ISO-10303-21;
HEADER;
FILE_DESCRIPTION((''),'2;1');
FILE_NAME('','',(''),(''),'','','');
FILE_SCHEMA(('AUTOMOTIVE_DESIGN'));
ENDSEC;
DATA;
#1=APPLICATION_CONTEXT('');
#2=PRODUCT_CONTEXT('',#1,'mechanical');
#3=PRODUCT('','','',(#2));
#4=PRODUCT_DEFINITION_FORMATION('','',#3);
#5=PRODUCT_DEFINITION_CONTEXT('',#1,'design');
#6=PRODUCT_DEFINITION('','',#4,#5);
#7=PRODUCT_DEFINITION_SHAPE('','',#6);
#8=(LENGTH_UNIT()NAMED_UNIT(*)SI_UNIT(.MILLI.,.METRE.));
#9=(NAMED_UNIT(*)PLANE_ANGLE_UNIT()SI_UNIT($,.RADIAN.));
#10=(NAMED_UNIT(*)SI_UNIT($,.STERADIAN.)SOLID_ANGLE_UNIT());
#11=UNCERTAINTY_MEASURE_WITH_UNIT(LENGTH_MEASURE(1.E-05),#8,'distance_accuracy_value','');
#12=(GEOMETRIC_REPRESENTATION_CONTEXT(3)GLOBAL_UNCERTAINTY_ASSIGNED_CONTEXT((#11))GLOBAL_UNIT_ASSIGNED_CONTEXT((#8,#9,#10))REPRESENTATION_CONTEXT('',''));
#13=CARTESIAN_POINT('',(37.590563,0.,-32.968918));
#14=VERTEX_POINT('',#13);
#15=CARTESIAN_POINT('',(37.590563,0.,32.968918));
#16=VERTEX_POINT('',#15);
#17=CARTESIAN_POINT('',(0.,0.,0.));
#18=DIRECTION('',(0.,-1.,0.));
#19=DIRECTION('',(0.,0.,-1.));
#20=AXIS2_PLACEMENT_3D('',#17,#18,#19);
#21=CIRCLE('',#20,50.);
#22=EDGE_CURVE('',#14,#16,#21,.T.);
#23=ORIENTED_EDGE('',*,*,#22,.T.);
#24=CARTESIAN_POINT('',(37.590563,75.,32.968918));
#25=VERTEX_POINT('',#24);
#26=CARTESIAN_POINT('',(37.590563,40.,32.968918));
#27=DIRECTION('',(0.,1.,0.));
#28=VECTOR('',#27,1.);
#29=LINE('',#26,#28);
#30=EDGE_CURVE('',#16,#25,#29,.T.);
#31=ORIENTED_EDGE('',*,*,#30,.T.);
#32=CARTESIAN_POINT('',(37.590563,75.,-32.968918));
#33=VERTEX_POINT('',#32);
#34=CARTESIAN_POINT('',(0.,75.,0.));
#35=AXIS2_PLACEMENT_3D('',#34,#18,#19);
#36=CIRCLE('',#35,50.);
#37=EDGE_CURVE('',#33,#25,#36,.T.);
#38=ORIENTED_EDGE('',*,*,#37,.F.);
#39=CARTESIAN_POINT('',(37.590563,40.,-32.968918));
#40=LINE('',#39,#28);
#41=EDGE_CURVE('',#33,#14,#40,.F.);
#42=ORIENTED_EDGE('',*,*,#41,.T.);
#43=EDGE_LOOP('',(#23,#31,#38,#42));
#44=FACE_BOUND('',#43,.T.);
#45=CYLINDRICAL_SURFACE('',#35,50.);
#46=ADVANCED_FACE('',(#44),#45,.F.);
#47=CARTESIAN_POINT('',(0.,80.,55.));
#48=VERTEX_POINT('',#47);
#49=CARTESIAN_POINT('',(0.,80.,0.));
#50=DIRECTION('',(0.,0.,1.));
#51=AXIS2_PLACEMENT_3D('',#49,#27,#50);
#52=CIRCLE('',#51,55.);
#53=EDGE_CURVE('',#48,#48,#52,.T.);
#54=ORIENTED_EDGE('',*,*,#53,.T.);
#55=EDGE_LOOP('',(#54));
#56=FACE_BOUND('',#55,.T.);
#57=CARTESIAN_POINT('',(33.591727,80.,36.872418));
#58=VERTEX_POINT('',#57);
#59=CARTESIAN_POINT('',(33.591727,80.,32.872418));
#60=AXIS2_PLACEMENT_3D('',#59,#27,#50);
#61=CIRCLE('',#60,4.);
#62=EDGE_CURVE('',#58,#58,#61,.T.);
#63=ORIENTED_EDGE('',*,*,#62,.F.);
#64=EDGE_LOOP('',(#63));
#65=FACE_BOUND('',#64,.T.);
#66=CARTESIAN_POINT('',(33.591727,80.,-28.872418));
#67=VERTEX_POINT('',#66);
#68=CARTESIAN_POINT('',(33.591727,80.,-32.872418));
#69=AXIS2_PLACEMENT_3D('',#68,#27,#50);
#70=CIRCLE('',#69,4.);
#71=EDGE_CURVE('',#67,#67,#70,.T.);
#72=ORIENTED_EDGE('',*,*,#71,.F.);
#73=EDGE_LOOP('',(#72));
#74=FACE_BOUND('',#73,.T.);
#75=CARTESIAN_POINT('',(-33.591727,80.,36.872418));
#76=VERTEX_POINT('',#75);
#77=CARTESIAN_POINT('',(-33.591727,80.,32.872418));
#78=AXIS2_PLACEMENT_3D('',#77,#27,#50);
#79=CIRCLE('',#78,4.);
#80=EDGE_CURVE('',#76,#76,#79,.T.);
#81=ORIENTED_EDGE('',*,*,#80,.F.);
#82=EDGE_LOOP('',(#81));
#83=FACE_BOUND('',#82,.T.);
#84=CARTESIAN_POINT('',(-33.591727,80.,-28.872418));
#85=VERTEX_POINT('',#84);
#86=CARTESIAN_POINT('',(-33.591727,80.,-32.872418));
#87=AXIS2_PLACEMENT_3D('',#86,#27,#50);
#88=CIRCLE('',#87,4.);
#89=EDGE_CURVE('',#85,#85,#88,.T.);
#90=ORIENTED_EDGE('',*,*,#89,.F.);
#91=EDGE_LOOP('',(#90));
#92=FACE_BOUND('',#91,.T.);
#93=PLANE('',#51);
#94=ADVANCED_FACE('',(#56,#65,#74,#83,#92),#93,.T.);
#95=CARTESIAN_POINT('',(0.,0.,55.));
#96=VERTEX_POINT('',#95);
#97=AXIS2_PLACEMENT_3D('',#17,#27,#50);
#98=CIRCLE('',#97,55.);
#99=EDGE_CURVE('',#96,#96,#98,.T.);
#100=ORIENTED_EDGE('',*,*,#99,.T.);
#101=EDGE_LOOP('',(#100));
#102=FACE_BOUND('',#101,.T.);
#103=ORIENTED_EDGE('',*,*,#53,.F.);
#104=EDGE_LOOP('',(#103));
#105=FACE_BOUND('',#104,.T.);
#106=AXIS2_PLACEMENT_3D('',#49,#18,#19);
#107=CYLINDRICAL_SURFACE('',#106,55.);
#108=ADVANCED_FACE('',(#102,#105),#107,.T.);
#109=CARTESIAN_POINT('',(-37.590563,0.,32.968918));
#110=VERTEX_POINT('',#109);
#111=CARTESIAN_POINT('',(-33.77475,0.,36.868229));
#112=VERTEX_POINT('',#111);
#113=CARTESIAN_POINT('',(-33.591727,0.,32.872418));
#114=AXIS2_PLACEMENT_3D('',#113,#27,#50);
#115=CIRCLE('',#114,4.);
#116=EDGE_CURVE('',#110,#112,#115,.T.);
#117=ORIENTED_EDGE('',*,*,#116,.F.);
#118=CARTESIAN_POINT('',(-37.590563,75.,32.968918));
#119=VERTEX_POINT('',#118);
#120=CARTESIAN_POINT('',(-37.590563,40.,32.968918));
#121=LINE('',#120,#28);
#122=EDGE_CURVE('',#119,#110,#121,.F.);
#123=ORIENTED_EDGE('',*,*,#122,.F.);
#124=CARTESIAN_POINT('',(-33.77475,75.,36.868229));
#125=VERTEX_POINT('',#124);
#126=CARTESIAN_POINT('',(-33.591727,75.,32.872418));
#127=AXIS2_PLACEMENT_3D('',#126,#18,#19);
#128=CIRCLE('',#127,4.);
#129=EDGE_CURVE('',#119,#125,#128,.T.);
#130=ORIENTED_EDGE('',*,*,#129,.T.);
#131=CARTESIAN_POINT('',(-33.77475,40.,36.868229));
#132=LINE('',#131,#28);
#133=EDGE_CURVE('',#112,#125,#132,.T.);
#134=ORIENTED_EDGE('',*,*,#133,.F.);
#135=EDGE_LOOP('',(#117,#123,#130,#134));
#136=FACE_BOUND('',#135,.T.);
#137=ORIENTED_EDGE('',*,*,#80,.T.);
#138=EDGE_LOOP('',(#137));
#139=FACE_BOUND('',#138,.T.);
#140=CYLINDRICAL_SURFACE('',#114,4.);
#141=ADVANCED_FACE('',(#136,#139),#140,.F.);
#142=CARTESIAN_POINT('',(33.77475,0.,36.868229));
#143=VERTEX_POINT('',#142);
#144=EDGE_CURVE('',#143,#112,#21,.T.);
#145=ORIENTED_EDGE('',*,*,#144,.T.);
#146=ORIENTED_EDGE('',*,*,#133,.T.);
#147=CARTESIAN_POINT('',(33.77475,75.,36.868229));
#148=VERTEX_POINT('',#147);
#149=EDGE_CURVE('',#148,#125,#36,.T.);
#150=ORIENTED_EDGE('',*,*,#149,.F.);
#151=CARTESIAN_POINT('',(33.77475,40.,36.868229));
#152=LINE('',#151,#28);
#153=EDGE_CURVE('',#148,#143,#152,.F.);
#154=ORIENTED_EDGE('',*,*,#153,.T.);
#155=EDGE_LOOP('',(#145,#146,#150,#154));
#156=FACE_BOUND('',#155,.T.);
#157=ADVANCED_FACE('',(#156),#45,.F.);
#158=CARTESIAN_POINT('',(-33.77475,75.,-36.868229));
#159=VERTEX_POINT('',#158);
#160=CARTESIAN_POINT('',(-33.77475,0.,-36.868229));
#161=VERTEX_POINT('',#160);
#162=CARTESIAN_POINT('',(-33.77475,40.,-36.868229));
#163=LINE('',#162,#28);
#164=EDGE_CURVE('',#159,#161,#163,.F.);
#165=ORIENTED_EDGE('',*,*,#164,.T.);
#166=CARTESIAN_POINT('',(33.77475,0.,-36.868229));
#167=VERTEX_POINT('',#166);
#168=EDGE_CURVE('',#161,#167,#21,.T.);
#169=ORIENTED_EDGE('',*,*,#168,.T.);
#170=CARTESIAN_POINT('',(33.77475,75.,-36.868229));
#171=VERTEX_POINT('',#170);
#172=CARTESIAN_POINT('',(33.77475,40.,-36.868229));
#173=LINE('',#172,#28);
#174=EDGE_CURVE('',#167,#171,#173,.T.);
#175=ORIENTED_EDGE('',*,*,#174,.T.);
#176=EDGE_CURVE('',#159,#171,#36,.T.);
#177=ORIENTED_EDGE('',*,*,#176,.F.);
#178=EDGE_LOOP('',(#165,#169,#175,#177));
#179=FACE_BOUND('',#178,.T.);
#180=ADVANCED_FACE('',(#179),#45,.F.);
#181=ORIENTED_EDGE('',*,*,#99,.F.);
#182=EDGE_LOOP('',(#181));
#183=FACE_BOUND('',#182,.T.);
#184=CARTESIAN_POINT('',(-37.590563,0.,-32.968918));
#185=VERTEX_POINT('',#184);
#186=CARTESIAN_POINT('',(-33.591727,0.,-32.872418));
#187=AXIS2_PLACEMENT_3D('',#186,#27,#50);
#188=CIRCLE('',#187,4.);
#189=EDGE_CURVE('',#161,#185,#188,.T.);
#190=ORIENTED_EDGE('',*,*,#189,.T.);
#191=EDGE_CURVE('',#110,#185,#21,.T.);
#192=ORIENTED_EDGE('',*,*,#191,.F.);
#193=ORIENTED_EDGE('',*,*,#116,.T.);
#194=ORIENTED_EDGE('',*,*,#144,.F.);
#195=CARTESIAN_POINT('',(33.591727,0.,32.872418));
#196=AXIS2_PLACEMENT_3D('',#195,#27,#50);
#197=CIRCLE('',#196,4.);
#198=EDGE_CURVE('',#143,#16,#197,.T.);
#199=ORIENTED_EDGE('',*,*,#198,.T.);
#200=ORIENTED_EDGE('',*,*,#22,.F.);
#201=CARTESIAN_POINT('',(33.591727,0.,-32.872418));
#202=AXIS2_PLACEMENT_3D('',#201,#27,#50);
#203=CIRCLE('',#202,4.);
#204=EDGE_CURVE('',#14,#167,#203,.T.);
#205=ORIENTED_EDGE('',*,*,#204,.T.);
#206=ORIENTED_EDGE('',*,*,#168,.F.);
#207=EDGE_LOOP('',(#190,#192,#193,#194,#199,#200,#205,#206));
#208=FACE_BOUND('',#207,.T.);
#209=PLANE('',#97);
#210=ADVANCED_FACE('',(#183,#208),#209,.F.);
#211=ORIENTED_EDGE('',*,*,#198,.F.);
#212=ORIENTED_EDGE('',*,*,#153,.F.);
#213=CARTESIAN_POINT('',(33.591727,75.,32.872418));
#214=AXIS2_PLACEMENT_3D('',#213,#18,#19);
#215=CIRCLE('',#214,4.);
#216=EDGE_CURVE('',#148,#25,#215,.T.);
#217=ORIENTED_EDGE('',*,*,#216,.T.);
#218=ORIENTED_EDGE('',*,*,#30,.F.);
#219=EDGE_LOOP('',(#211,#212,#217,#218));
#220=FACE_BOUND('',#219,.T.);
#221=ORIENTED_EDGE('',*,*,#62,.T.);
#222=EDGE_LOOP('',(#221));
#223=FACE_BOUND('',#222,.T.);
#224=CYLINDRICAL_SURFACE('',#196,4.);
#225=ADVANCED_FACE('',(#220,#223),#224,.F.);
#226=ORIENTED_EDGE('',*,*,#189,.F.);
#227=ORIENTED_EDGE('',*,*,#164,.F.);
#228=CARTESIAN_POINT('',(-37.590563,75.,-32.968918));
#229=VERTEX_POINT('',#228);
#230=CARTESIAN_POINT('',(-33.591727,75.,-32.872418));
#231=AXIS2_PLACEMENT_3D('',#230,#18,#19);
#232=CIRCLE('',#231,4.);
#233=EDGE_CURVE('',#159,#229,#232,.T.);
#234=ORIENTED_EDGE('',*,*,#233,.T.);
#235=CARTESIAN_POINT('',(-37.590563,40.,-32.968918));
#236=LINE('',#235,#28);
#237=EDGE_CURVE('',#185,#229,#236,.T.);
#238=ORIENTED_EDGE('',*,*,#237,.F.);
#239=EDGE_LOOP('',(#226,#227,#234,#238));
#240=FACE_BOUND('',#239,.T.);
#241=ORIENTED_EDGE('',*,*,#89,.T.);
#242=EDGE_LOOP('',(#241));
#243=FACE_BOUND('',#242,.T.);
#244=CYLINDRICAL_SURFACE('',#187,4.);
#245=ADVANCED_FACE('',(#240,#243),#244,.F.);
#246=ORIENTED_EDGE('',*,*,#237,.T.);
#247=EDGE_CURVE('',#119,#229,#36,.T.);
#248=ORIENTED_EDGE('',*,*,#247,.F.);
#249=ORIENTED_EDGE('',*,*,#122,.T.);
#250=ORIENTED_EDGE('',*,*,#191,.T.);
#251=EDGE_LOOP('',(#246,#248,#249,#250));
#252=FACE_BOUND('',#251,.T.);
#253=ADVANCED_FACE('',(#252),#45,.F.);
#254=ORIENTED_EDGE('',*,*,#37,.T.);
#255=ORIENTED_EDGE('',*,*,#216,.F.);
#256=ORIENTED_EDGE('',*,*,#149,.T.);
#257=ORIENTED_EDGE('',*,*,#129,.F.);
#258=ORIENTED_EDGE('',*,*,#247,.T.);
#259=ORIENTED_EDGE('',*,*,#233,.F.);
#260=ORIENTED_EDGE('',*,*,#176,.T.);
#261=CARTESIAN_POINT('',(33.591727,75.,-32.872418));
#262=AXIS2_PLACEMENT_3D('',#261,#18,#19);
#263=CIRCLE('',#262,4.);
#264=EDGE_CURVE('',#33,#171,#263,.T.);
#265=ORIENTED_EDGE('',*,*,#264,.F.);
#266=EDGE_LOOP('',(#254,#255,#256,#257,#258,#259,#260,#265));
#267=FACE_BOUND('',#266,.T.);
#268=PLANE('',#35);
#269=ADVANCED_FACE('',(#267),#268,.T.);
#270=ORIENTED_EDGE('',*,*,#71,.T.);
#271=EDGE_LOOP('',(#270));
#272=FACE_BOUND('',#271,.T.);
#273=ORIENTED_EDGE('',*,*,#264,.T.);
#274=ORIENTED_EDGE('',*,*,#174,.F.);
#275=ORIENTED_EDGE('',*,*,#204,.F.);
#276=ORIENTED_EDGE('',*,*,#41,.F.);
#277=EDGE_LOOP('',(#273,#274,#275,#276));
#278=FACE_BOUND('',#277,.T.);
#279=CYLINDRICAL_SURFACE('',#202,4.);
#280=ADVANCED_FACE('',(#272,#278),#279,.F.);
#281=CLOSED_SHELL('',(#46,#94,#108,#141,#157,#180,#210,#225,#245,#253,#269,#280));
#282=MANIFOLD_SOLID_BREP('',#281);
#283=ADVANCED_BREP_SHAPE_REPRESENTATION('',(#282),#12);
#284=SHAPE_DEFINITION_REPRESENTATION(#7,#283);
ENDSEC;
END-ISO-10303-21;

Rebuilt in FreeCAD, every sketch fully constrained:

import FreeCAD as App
import Part
import Sketcher
from FreeCAD import Vector


def add_polygon(sketch, points):
    """Adds a closed chain of lines whose ends are joined by coincident constraints."""
    first, n = sketch.GeometryCount, len(points)
    for a, b in zip(points, points[1:] + points[:1]):
        sketch.addGeometry(Part.LineSegment(App.Vector(*a, 0), App.Vector(*b, 0)), False)
    for i in range(n):
        sketch.addConstraint(Sketcher.Constraint("Coincident", first + i, 2, first + (i + 1) % n, 1))

doc = App.newDocument("Part")
body = doc.addObject("PartDesign::Body", "Body")

sketch1 = body.newObject("Sketcher::SketchObject", "Sketch")
sketch1.AttachmentSupport = (doc.getObject("XZ_Plane"), [""])
sketch1.MapMode = "FlatFace"
sketch1.addGeometry(Part.Circle(Vector(0, 0, 0), Vector(0, 0, 1), 55), False)
sketch1.addConstraint([
    Sketcher.Constraint("Coincident", 0, 3, -1, 1),
    Sketcher.Constraint("Diameter", 0, 110.0),
])
pad1 = body.newObject("PartDesign::Pad", "Pad")
pad1.Profile = sketch1
pad1.Length = 80
pad1.Reversed = True

sketch2 = body.newObject("Sketcher::SketchObject", "Sketch001")
sketch2.AttachmentSupport = (doc.getObject("XZ_Plane"), [""])
sketch2.MapMode = "FlatFace"
sketch2.addGeometry(Part.Circle(Vector(0, 0, 0), Vector(0, 0, 1), 50), False)
sketch2.addConstraint([
    Sketcher.Constraint("Coincident", 0, 3, -1, 1),
    Sketcher.Constraint("Diameter", 0, 100.0),
])
pocket1 = body.newObject("PartDesign::Pocket", "Pocket")
pocket1.Profile = sketch2
pocket1.Length = 75

sketch3 = body.newObject("Sketcher::SketchObject", "Sketch002")
sketch3.AttachmentSupport = (doc.getObject("XZ_Plane"), [""])
sketch3.MapMode = "FlatFace"
sketch3.AttachmentOffset = App.Placement(Vector(0, 0, -75), App.Rotation())
add_polygon(sketch3, [(-17, 8), (-17, -8), (17, -8), (17, 8)])
sketch3.addConstraint([
    Sketcher.Constraint("Vertical", 0),
    Sketcher.Constraint("Horizontal", 1),
    Sketcher.Constraint("Vertical", 2),
    Sketcher.Constraint("Horizontal", 3),
    Sketcher.Constraint("Symmetric", 0, 2, 2, 2, -1, 1),
    Sketcher.Constraint("DistanceY", 0, 2, 0, 1, 15.0),
    Sketcher.Constraint("DistanceX", 1, 1, 1, 2, 33.5),
])
pocket2 = body.newObject("PartDesign::Pocket", "Pocket001")
pocket2.Profile = sketch3
pocket2.Type = "ThroughAll"

sketch4 = body.newObject("Sketcher::SketchObject", "Sketch003")
sketch4.AttachmentSupport = (doc.getObject("XZ_Plane"), [""])
sketch4.MapMode = "FlatFace"
sketch4.AttachmentOffset = App.Placement(Vector(0, 0, -80), App.Rotation())
sketch4.addGeometry([
    Part.Circle(Vector(33.6, 32.9, 0), Vector(0, 0, 1), 4),
    Part.Circle(Vector(-33.6, 32.9, 0), Vector(0, 0, 1), 4),
    Part.Circle(Vector(-33.6, -32.9, 0), Vector(0, 0, 1), 4),
    Part.Circle(Vector(33.6, -32.9, 0), Vector(0, 0, 1), 4),
], False)
sketch4.addConstraint([
    Sketcher.Constraint("Equal", 0, 1),
    Sketcher.Constraint("Equal", 1, 2),
    Sketcher.Constraint("Equal", 2, 3),
    Sketcher.Constraint("Symmetric", 0, 3, 2, 3, -1, 1),
    Sketcher.Constraint("Symmetric", 1, 3, 3, 3, -1, 1),
    Sketcher.Constraint("Symmetric", 0, 3, 1, 3, -2),
    Sketcher.Constraint("Diameter", 0, 8.0),
    Sketcher.Constraint("DistanceY", -1, 1, 0, 3, 32.872418),
    Sketcher.Constraint("DistanceX", -1, 1, 0, 3, 33.591727),
])
pocket3 = body.newObject("PartDesign::Pocket", "Pocket002")
pocket3.Profile = sketch4
pocket3.Type = "ThroughAll"
pocket3.Reversed = True

sketch5 = body.newObject("Sketcher::SketchObject", "Sketch004")
sketch5.AttachmentSupport = (doc.getObject("XZ_Plane"), [""])
sketch5.MapMode = "FlatFace"
sketch5.AttachmentOffset = App.Placement(Vector(0, 0, -80), App.Rotation())
add_polygon(sketch5, [(-17, -8), (-17, 8), (17, 8), (17, -8)])
sketch5.addConstraint([
    Sketcher.Constraint("Vertical", 0),
    Sketcher.Constraint("Horizontal", 1),
    Sketcher.Constraint("Vertical", 2),
    Sketcher.Constraint("Horizontal", 3),
    Sketcher.Constraint("Symmetric", 0, 2, 2, 2, -1, 1),
    Sketcher.Constraint("DistanceY", 0, 1, 0, 2, 15.0),
    Sketcher.Constraint("DistanceX", 1, 1, 1, 2, 33.5),
])
pad2 = body.newObject("PartDesign::Pad", "Pad001")
pad2.Profile = sketch5
pad2.Length = 5

doc.recompute()
